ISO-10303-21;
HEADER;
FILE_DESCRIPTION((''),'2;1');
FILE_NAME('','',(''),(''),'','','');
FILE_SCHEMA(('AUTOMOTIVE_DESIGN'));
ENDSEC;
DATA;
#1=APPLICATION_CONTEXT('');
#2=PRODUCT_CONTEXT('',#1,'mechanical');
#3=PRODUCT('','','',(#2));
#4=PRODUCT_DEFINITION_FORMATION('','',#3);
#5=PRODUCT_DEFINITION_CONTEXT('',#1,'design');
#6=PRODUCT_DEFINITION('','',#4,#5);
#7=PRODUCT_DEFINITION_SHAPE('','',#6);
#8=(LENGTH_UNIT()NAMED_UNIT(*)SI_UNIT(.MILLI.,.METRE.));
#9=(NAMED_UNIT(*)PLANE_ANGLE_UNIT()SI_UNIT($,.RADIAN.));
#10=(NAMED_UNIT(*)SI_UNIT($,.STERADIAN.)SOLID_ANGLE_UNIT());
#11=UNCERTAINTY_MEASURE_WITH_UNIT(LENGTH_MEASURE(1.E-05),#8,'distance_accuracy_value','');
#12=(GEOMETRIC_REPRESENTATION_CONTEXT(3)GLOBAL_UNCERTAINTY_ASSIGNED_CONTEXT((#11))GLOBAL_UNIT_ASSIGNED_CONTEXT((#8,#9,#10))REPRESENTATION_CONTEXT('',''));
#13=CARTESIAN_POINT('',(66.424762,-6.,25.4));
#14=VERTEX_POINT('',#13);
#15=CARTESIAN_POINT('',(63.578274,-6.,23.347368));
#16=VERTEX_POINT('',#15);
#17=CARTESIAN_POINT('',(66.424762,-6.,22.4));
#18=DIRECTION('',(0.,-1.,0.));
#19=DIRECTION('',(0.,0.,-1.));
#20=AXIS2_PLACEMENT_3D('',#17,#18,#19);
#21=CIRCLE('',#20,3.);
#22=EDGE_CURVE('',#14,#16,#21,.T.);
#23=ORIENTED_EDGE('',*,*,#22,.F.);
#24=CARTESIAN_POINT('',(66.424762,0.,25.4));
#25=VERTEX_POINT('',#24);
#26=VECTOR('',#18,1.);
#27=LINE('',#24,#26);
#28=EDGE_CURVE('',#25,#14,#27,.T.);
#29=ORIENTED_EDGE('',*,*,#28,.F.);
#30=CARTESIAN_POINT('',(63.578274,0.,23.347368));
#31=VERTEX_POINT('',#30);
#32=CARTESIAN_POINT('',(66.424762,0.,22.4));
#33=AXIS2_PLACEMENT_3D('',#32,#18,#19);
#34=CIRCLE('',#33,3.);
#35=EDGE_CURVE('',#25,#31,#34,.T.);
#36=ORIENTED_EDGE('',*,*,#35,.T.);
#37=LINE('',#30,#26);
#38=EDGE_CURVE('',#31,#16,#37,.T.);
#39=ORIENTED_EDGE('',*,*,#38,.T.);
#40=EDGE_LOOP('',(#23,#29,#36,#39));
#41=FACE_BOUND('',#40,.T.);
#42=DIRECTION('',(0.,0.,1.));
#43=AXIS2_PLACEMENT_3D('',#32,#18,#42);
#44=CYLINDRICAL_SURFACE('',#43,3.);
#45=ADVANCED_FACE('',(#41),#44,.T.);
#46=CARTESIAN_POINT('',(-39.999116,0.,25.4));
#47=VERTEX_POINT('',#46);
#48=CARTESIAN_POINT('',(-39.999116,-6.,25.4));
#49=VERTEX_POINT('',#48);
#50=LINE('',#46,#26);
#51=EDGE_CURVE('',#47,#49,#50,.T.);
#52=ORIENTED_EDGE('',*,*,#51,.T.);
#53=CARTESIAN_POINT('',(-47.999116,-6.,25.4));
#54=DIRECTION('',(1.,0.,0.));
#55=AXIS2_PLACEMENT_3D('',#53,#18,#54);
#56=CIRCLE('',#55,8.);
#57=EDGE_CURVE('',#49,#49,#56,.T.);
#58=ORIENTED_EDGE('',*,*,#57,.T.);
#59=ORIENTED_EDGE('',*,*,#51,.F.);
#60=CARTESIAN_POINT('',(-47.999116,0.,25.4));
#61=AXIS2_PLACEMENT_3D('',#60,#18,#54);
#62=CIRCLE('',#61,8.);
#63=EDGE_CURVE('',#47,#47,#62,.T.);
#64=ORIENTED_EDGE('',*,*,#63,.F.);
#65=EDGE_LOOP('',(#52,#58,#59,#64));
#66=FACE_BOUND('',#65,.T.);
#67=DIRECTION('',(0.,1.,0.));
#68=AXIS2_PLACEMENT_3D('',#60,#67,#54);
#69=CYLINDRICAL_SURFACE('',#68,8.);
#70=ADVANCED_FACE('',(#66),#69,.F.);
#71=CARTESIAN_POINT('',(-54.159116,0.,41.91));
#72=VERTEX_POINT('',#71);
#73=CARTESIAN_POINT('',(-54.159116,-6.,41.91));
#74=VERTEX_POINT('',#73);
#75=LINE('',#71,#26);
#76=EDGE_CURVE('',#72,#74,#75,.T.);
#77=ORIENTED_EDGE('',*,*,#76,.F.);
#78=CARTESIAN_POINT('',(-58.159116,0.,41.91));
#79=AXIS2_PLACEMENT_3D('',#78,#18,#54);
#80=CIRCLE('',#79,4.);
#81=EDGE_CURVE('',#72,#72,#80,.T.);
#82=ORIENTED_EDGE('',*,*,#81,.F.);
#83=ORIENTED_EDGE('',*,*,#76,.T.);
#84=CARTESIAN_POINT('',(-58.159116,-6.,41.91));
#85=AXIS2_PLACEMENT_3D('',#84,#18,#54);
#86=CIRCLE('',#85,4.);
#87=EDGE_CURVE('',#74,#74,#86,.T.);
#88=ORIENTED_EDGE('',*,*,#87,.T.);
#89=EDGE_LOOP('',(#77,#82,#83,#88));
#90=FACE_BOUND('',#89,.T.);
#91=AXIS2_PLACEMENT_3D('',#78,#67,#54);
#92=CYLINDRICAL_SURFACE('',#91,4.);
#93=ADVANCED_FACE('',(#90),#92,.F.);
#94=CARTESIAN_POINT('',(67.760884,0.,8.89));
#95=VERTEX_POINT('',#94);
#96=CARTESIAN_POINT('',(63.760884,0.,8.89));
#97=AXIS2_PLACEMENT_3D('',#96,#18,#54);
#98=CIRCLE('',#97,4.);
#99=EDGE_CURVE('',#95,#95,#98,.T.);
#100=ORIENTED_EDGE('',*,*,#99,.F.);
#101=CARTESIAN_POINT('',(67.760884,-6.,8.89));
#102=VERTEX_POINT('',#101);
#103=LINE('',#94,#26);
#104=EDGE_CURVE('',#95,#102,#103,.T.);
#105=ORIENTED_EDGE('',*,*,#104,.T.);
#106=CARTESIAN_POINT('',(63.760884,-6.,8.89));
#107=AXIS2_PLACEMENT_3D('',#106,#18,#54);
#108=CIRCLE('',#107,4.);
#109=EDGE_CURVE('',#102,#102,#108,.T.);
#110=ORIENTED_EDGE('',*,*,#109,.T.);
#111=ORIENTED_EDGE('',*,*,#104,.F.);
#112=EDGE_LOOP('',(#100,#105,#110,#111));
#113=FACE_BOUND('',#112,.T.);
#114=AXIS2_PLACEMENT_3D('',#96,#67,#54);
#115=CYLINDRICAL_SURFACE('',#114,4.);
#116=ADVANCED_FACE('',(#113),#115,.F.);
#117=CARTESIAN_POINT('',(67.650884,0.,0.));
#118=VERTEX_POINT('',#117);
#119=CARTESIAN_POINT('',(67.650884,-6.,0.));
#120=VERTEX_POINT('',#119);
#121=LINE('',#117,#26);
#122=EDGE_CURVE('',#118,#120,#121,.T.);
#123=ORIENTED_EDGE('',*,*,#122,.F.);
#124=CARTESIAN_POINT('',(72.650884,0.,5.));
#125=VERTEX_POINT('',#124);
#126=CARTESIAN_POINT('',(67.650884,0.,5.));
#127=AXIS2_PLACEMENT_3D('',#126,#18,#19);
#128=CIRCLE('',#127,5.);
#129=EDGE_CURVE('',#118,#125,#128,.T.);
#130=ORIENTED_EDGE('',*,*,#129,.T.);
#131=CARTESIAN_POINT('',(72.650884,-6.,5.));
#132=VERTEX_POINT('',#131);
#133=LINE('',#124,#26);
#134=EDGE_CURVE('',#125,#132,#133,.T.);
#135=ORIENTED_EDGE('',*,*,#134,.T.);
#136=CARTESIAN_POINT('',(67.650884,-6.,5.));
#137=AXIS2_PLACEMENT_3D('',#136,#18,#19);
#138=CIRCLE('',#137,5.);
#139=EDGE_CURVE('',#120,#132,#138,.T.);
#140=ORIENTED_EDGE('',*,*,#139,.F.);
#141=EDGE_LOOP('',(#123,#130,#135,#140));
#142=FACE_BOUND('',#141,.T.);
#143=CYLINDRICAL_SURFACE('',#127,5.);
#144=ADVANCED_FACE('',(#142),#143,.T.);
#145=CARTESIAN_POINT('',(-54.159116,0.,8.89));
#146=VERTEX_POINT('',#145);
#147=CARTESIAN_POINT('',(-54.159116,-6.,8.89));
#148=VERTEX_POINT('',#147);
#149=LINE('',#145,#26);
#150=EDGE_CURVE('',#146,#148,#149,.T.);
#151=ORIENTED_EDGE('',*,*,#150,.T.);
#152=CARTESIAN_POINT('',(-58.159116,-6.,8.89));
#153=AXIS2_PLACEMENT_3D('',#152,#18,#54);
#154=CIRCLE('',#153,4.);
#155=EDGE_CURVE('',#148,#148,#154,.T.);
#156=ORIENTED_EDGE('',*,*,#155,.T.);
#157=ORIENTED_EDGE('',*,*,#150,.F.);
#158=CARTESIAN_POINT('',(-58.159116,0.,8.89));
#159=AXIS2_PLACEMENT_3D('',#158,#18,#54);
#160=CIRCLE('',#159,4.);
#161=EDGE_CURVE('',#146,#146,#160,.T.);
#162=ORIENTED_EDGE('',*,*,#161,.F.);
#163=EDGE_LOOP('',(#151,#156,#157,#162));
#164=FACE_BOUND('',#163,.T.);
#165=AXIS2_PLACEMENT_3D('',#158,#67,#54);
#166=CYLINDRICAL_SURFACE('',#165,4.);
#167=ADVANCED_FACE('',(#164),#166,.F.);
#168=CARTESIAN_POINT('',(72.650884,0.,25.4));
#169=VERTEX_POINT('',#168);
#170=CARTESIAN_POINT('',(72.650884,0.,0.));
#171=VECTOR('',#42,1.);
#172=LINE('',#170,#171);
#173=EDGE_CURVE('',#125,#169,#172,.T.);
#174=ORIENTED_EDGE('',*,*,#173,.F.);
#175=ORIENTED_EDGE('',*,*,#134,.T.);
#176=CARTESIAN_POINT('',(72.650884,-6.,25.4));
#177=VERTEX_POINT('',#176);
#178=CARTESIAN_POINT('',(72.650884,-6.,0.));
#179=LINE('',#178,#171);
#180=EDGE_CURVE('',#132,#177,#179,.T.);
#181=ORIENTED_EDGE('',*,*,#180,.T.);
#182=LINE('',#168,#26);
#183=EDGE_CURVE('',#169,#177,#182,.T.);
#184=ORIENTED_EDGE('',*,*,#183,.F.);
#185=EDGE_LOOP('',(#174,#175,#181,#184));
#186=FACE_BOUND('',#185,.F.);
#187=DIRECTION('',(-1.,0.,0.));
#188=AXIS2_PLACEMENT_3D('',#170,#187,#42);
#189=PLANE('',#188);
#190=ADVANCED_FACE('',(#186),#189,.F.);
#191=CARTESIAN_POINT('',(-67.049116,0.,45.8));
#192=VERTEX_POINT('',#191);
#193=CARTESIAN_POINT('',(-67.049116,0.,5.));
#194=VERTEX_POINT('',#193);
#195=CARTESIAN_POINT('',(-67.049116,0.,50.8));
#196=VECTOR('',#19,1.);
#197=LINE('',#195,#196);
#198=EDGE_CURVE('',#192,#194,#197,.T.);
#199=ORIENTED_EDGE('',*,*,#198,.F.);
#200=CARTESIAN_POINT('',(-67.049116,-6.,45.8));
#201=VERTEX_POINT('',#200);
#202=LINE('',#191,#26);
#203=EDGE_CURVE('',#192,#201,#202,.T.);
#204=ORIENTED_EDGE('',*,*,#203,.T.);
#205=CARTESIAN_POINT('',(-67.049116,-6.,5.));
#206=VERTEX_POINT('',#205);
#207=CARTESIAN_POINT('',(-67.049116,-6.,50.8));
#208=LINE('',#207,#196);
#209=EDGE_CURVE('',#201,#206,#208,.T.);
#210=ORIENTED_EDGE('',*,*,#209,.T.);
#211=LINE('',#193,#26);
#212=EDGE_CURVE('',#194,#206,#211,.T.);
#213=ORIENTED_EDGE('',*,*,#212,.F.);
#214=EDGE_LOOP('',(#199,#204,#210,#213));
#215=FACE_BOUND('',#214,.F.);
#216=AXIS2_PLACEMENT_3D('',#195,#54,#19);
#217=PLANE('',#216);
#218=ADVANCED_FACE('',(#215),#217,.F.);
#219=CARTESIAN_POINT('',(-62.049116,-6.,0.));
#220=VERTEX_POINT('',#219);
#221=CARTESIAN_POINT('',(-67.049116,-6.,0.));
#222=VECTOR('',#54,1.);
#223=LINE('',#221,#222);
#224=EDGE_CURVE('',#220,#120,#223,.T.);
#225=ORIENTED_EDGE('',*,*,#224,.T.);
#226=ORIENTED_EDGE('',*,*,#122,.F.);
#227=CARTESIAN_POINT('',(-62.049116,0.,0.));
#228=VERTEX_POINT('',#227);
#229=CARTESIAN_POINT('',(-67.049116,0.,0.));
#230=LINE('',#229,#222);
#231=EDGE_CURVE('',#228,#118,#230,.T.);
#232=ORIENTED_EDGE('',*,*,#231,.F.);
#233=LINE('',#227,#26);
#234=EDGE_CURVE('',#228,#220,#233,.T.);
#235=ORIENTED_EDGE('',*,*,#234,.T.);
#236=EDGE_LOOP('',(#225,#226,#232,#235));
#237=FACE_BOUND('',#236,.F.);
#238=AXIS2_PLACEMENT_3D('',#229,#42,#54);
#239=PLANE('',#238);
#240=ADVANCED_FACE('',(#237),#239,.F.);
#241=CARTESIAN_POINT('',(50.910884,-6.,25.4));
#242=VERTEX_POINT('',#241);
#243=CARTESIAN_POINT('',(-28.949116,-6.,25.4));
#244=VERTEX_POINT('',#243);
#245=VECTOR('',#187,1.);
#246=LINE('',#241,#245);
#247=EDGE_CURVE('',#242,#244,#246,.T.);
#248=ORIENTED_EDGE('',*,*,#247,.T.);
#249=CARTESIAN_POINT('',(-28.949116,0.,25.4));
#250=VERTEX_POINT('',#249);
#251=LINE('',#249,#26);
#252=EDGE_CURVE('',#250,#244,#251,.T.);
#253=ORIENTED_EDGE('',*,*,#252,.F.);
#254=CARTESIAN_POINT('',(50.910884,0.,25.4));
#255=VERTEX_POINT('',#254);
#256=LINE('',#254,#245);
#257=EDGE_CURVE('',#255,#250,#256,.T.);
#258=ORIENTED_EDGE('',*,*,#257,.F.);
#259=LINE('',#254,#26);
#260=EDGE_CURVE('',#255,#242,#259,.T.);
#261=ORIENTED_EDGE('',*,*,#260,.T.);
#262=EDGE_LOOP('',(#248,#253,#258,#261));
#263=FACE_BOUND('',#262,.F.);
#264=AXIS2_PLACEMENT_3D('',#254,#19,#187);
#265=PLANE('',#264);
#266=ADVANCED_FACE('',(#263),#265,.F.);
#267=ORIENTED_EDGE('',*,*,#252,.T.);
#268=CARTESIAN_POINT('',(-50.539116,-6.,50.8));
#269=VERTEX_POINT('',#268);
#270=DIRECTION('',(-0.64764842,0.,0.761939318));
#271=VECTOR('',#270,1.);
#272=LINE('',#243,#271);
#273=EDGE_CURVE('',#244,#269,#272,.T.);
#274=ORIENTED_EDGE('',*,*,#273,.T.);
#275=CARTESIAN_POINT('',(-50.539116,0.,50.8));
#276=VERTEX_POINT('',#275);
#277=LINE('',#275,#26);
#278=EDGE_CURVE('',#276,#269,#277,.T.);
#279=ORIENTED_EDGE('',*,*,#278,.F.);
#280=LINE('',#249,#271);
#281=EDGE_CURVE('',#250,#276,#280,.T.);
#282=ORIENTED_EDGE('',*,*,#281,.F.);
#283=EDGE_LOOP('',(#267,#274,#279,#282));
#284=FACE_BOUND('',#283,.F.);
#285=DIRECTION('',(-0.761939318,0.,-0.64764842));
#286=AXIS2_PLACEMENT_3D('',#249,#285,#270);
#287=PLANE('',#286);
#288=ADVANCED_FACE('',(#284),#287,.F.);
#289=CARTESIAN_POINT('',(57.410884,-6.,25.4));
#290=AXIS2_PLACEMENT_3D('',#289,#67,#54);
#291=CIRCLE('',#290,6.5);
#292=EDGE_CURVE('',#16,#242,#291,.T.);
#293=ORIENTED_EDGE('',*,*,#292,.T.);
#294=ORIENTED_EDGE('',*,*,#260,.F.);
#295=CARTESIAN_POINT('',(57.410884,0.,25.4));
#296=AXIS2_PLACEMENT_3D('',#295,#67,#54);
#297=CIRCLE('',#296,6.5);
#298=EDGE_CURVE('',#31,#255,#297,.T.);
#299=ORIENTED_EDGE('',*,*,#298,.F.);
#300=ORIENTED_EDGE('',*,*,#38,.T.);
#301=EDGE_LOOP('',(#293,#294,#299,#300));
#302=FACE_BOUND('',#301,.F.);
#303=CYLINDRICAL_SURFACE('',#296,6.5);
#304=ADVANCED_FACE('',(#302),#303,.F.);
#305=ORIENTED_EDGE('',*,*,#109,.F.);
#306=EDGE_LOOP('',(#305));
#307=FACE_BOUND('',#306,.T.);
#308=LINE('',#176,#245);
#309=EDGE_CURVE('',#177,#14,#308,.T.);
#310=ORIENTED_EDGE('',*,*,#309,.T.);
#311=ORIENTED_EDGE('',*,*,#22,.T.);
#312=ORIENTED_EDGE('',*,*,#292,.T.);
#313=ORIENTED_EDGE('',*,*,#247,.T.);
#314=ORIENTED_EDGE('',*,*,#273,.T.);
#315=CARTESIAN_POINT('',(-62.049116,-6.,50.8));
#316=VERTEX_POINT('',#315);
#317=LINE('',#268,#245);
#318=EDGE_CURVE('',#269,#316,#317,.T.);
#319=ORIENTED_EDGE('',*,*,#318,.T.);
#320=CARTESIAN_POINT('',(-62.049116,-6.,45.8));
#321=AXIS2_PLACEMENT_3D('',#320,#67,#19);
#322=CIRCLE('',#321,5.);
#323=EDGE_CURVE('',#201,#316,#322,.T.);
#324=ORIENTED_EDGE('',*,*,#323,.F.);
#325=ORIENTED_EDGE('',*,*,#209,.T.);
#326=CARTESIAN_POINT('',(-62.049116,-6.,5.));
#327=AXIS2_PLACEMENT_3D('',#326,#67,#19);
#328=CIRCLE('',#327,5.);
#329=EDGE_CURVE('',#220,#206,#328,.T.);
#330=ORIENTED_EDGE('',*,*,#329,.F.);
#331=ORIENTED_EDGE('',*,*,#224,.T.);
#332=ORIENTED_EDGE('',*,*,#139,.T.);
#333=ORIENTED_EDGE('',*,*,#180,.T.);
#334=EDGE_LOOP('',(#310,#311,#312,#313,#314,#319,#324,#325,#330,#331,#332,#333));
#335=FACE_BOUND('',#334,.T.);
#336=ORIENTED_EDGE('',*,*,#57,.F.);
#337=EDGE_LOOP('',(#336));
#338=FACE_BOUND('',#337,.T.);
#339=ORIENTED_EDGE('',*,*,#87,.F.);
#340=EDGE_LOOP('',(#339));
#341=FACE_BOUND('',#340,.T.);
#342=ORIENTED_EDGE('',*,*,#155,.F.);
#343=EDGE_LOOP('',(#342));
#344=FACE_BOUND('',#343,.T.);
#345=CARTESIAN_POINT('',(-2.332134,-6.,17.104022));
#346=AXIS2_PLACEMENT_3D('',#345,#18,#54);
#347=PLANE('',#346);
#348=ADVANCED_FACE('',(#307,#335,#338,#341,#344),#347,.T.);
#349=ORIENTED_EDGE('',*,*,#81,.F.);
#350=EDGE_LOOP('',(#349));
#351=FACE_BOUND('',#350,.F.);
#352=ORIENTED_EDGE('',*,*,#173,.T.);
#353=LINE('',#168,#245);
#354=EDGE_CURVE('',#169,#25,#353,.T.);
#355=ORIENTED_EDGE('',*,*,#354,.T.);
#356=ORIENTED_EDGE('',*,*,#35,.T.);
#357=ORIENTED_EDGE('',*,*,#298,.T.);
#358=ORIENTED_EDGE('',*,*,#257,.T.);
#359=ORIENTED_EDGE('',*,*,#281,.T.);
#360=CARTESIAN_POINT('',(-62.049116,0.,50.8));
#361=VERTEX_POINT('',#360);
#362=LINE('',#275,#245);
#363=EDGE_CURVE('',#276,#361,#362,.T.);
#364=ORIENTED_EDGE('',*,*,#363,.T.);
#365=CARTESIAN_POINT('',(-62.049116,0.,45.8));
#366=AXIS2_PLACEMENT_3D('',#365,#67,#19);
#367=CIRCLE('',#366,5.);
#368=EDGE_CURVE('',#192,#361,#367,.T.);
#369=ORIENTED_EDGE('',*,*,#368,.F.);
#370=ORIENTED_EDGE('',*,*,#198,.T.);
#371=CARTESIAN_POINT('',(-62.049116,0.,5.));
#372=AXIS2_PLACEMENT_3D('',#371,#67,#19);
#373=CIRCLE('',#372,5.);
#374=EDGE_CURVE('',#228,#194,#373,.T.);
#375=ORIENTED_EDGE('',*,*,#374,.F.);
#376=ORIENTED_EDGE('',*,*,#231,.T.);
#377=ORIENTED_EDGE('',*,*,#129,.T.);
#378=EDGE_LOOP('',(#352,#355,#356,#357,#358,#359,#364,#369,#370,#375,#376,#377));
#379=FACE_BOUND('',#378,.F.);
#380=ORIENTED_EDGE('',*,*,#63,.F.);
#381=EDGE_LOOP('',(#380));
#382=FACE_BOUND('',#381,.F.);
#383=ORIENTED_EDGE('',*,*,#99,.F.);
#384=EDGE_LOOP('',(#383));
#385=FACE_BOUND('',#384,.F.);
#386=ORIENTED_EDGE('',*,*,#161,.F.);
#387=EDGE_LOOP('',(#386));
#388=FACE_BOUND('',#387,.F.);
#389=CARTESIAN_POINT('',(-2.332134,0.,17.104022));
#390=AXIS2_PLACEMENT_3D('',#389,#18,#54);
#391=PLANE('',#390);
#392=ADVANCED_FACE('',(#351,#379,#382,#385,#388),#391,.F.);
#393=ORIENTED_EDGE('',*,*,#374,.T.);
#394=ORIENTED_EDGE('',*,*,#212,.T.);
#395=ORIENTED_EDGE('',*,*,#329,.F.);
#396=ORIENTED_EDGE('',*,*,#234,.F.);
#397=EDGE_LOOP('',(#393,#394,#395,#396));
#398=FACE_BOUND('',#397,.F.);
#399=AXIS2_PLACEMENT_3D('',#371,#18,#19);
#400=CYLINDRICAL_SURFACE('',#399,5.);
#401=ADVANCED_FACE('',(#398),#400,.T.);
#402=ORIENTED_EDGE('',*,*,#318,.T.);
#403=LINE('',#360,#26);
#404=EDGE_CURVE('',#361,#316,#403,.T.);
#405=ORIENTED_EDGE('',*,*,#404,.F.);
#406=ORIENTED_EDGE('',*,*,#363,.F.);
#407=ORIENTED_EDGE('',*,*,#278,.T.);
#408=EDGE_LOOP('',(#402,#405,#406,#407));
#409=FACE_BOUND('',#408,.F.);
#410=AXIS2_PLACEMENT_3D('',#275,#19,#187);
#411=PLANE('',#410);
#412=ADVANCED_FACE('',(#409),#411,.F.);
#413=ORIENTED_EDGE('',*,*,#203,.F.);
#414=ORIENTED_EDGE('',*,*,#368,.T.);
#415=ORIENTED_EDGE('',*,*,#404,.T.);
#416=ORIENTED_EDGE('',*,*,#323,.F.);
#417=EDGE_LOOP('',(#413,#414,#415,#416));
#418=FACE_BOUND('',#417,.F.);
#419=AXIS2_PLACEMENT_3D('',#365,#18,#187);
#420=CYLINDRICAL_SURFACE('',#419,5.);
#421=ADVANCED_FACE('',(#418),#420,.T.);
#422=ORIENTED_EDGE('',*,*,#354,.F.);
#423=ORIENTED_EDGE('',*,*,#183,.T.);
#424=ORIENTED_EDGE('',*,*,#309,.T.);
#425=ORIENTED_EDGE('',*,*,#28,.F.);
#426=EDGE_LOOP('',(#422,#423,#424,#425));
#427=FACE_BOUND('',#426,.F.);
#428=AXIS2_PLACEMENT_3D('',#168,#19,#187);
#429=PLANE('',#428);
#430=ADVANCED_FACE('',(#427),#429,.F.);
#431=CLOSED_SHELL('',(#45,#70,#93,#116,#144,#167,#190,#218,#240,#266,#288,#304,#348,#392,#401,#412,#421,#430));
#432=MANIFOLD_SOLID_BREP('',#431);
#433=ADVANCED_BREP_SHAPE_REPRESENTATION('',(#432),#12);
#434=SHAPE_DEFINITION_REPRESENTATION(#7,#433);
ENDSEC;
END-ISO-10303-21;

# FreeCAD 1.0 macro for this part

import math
import FreeCAD as App
import Part
import Sketcher


def edges_at(feature, points):
    """Names of the edges that pass closest to the given points."""
    edges = feature.Shape.Edges
    near = lambda p: min(range(len(edges)), key=lambda i: edges[i].distToShape(Part.Vertex(*p))[0])
    return sorted({f"Edge{near(p) + 1}" for p in points})

doc = App.newDocument("Part")
body = doc.addObject("PartDesign::Body", "Body")

# Sketch on XZ plane
sketch1 = body.newObject("Sketcher::SketchObject", "Sketch")
sketch1.AttachmentSupport = (doc.getObject("XZ_Plane"), [""])
sketch1.MapMode = "FlatFace"
sketch1.addGeometry([
    Part.LineSegment(App.Vector(-67.049116, 0, 0), App.Vector(72.650884, 0, 0)),  # 0
    Part.LineSegment(App.Vector(72.650884, 0, 0), App.Vector(72.650884, 25.4, 0)),  # 1
    Part.LineSegment(App.Vector(72.650884, 25.4, 0), App.Vector(63.910884, 25.4, 0)),  # 2
    Part.ArcOfCircle(Part.Circle(App.Vector(57.410884, 25.4, 0), App.Vector(0, 0, 1), 6.5), math.radians(180), math.radians(360)),  # 3
    Part.LineSegment(App.Vector(50.910884, 25.4, 0), App.Vector(-28.949116, 25.4, 0)),  # 4
    Part.LineSegment(App.Vector(-28.949116, 25.4, 0), App.Vector(-50.539116, 50.8, 0)),  # 5
    Part.LineSegment(App.Vector(-50.539116, 50.8, 0), App.Vector(-67.049116, 50.8, 0)),  # 6
    Part.LineSegment(App.Vector(-67.049116, 50.8, 0), App.Vector(-67.049116, 0, 0)),  # 7
    Part.Circle(App.Vector(-58.159116, 8.89, 0), App.Vector(0, 0, 1), 4),  # 8
    Part.Circle(App.Vector(63.760884, 8.89, 0), App.Vector(0, 0, 1), 4),  # 9
    Part.Circle(App.Vector(-47.999116, 25.4, 0), App.Vector(0, 0, 1), 8),  # 10
    Part.Circle(App.Vector(-58.159116, 41.91, 0), App.Vector(0, 0, 1), 4),  # 11
], False)
sketch1.addConstraint([
    Sketcher.Constraint("Coincident", 0, 2, 1, 1),
    Sketcher.Constraint("Coincident", 1, 2, 2, 1),
    Sketcher.Constraint("Coincident", 2, 2, 3, 2),
    Sketcher.Constraint("Coincident", 3, 1, 4, 1),
    Sketcher.Constraint("Coincident", 4, 2, 5, 1),
    Sketcher.Constraint("Coincident", 5, 2, 6, 1),
    Sketcher.Constraint("Coincident", 6, 2, 7, 1),
    Sketcher.Constraint("Coincident", 7, 2, 0, 1),
    Sketcher.Constraint("Horizontal", 0),
    Sketcher.Constraint("Vertical", 1),
    Sketcher.Constraint("Horizontal", 2),
    Sketcher.Constraint("Horizontal", 4),
    Sketcher.Constraint("Horizontal", 6),
    Sketcher.Constraint("Vertical", 7),
    Sketcher.Constraint("Equal", 8, 9),
    Sketcher.Constraint("Equal", 9, 11),
    Sketcher.Constraint("PointOnObject", 0, 2, -1),
    Sketcher.Constraint("Horizontal", 8, 3, 9, 3),
    Sketcher.Constraint("Horizontal", 3, 3, 10, 3),
    Sketcher.Constraint("Horizontal", 10, 3, 1, 2),
    Sketcher.Constraint("Horizontal", 2, 2, 3, 1),
    Sketcher.Constraint("Vertical", 8, 3, 11, 3),
    Sketcher.Constraint("Diameter", 8, 8.0),
    Sketcher.Constraint("Diameter", 10, 16.0),
    Sketcher.Constraint("Radius", 3, 6.5),
    Sketcher.Constraint("DistanceX", 0, 1, 0, 2, 139.7),
    Sketcher.Constraint("DistanceY", 1, 1, 1, 2, 25.4),
    Sketcher.Constraint("DistanceY", 7, 2, 7, 1, 50.8),
    Sketcher.Constraint("DistanceX", 2, 2, 2, 1, 8.74),
    Sketcher.Constraint("DistanceX", 4, 2, 4, 1, 79.86),
    Sketcher.Constraint("DistanceX", 6, 2, 6, 1, 16.51),
    Sketcher.Constraint("DistanceY", -1, 1, 8, 3, 8.89),
    Sketcher.Constraint("DistanceY", -1, 1, 11, 3, 41.91),
    Sketcher.Constraint("DistanceX", 8, 3, 3, 3, 115.57),
    Sketcher.Constraint("DistanceX", 3, 3, 9, 3, 6.35),
    Sketcher.Constraint("DistanceX", 8, 3, 10, 3, 10.16),
    Sketcher.Constraint("DistanceX", -1, 1, 3, 3, 57.410884),
])
pad1 = body.newObject("PartDesign::Pad", "Pad")
pad1.Profile = sketch1
pad1.Length = 6
doc.recompute()

fillet = body.newObject("PartDesign::Fillet", "Fillet")
fillet.Base = (pad1, edges_at(pad1, [(-67.049, -3, 50.8), (-67.049, -3, 0), (72.651, -3, 0)]))
fillet.Radius = 5
doc.recompute()

fillet2 = body.newObject("PartDesign::Fillet", "Fillet001")
fillet2.Base = (fillet, edges_at(fillet, [(63.911, -3, 25.4)]))
fillet2.Radius = 3

doc.recompute()
